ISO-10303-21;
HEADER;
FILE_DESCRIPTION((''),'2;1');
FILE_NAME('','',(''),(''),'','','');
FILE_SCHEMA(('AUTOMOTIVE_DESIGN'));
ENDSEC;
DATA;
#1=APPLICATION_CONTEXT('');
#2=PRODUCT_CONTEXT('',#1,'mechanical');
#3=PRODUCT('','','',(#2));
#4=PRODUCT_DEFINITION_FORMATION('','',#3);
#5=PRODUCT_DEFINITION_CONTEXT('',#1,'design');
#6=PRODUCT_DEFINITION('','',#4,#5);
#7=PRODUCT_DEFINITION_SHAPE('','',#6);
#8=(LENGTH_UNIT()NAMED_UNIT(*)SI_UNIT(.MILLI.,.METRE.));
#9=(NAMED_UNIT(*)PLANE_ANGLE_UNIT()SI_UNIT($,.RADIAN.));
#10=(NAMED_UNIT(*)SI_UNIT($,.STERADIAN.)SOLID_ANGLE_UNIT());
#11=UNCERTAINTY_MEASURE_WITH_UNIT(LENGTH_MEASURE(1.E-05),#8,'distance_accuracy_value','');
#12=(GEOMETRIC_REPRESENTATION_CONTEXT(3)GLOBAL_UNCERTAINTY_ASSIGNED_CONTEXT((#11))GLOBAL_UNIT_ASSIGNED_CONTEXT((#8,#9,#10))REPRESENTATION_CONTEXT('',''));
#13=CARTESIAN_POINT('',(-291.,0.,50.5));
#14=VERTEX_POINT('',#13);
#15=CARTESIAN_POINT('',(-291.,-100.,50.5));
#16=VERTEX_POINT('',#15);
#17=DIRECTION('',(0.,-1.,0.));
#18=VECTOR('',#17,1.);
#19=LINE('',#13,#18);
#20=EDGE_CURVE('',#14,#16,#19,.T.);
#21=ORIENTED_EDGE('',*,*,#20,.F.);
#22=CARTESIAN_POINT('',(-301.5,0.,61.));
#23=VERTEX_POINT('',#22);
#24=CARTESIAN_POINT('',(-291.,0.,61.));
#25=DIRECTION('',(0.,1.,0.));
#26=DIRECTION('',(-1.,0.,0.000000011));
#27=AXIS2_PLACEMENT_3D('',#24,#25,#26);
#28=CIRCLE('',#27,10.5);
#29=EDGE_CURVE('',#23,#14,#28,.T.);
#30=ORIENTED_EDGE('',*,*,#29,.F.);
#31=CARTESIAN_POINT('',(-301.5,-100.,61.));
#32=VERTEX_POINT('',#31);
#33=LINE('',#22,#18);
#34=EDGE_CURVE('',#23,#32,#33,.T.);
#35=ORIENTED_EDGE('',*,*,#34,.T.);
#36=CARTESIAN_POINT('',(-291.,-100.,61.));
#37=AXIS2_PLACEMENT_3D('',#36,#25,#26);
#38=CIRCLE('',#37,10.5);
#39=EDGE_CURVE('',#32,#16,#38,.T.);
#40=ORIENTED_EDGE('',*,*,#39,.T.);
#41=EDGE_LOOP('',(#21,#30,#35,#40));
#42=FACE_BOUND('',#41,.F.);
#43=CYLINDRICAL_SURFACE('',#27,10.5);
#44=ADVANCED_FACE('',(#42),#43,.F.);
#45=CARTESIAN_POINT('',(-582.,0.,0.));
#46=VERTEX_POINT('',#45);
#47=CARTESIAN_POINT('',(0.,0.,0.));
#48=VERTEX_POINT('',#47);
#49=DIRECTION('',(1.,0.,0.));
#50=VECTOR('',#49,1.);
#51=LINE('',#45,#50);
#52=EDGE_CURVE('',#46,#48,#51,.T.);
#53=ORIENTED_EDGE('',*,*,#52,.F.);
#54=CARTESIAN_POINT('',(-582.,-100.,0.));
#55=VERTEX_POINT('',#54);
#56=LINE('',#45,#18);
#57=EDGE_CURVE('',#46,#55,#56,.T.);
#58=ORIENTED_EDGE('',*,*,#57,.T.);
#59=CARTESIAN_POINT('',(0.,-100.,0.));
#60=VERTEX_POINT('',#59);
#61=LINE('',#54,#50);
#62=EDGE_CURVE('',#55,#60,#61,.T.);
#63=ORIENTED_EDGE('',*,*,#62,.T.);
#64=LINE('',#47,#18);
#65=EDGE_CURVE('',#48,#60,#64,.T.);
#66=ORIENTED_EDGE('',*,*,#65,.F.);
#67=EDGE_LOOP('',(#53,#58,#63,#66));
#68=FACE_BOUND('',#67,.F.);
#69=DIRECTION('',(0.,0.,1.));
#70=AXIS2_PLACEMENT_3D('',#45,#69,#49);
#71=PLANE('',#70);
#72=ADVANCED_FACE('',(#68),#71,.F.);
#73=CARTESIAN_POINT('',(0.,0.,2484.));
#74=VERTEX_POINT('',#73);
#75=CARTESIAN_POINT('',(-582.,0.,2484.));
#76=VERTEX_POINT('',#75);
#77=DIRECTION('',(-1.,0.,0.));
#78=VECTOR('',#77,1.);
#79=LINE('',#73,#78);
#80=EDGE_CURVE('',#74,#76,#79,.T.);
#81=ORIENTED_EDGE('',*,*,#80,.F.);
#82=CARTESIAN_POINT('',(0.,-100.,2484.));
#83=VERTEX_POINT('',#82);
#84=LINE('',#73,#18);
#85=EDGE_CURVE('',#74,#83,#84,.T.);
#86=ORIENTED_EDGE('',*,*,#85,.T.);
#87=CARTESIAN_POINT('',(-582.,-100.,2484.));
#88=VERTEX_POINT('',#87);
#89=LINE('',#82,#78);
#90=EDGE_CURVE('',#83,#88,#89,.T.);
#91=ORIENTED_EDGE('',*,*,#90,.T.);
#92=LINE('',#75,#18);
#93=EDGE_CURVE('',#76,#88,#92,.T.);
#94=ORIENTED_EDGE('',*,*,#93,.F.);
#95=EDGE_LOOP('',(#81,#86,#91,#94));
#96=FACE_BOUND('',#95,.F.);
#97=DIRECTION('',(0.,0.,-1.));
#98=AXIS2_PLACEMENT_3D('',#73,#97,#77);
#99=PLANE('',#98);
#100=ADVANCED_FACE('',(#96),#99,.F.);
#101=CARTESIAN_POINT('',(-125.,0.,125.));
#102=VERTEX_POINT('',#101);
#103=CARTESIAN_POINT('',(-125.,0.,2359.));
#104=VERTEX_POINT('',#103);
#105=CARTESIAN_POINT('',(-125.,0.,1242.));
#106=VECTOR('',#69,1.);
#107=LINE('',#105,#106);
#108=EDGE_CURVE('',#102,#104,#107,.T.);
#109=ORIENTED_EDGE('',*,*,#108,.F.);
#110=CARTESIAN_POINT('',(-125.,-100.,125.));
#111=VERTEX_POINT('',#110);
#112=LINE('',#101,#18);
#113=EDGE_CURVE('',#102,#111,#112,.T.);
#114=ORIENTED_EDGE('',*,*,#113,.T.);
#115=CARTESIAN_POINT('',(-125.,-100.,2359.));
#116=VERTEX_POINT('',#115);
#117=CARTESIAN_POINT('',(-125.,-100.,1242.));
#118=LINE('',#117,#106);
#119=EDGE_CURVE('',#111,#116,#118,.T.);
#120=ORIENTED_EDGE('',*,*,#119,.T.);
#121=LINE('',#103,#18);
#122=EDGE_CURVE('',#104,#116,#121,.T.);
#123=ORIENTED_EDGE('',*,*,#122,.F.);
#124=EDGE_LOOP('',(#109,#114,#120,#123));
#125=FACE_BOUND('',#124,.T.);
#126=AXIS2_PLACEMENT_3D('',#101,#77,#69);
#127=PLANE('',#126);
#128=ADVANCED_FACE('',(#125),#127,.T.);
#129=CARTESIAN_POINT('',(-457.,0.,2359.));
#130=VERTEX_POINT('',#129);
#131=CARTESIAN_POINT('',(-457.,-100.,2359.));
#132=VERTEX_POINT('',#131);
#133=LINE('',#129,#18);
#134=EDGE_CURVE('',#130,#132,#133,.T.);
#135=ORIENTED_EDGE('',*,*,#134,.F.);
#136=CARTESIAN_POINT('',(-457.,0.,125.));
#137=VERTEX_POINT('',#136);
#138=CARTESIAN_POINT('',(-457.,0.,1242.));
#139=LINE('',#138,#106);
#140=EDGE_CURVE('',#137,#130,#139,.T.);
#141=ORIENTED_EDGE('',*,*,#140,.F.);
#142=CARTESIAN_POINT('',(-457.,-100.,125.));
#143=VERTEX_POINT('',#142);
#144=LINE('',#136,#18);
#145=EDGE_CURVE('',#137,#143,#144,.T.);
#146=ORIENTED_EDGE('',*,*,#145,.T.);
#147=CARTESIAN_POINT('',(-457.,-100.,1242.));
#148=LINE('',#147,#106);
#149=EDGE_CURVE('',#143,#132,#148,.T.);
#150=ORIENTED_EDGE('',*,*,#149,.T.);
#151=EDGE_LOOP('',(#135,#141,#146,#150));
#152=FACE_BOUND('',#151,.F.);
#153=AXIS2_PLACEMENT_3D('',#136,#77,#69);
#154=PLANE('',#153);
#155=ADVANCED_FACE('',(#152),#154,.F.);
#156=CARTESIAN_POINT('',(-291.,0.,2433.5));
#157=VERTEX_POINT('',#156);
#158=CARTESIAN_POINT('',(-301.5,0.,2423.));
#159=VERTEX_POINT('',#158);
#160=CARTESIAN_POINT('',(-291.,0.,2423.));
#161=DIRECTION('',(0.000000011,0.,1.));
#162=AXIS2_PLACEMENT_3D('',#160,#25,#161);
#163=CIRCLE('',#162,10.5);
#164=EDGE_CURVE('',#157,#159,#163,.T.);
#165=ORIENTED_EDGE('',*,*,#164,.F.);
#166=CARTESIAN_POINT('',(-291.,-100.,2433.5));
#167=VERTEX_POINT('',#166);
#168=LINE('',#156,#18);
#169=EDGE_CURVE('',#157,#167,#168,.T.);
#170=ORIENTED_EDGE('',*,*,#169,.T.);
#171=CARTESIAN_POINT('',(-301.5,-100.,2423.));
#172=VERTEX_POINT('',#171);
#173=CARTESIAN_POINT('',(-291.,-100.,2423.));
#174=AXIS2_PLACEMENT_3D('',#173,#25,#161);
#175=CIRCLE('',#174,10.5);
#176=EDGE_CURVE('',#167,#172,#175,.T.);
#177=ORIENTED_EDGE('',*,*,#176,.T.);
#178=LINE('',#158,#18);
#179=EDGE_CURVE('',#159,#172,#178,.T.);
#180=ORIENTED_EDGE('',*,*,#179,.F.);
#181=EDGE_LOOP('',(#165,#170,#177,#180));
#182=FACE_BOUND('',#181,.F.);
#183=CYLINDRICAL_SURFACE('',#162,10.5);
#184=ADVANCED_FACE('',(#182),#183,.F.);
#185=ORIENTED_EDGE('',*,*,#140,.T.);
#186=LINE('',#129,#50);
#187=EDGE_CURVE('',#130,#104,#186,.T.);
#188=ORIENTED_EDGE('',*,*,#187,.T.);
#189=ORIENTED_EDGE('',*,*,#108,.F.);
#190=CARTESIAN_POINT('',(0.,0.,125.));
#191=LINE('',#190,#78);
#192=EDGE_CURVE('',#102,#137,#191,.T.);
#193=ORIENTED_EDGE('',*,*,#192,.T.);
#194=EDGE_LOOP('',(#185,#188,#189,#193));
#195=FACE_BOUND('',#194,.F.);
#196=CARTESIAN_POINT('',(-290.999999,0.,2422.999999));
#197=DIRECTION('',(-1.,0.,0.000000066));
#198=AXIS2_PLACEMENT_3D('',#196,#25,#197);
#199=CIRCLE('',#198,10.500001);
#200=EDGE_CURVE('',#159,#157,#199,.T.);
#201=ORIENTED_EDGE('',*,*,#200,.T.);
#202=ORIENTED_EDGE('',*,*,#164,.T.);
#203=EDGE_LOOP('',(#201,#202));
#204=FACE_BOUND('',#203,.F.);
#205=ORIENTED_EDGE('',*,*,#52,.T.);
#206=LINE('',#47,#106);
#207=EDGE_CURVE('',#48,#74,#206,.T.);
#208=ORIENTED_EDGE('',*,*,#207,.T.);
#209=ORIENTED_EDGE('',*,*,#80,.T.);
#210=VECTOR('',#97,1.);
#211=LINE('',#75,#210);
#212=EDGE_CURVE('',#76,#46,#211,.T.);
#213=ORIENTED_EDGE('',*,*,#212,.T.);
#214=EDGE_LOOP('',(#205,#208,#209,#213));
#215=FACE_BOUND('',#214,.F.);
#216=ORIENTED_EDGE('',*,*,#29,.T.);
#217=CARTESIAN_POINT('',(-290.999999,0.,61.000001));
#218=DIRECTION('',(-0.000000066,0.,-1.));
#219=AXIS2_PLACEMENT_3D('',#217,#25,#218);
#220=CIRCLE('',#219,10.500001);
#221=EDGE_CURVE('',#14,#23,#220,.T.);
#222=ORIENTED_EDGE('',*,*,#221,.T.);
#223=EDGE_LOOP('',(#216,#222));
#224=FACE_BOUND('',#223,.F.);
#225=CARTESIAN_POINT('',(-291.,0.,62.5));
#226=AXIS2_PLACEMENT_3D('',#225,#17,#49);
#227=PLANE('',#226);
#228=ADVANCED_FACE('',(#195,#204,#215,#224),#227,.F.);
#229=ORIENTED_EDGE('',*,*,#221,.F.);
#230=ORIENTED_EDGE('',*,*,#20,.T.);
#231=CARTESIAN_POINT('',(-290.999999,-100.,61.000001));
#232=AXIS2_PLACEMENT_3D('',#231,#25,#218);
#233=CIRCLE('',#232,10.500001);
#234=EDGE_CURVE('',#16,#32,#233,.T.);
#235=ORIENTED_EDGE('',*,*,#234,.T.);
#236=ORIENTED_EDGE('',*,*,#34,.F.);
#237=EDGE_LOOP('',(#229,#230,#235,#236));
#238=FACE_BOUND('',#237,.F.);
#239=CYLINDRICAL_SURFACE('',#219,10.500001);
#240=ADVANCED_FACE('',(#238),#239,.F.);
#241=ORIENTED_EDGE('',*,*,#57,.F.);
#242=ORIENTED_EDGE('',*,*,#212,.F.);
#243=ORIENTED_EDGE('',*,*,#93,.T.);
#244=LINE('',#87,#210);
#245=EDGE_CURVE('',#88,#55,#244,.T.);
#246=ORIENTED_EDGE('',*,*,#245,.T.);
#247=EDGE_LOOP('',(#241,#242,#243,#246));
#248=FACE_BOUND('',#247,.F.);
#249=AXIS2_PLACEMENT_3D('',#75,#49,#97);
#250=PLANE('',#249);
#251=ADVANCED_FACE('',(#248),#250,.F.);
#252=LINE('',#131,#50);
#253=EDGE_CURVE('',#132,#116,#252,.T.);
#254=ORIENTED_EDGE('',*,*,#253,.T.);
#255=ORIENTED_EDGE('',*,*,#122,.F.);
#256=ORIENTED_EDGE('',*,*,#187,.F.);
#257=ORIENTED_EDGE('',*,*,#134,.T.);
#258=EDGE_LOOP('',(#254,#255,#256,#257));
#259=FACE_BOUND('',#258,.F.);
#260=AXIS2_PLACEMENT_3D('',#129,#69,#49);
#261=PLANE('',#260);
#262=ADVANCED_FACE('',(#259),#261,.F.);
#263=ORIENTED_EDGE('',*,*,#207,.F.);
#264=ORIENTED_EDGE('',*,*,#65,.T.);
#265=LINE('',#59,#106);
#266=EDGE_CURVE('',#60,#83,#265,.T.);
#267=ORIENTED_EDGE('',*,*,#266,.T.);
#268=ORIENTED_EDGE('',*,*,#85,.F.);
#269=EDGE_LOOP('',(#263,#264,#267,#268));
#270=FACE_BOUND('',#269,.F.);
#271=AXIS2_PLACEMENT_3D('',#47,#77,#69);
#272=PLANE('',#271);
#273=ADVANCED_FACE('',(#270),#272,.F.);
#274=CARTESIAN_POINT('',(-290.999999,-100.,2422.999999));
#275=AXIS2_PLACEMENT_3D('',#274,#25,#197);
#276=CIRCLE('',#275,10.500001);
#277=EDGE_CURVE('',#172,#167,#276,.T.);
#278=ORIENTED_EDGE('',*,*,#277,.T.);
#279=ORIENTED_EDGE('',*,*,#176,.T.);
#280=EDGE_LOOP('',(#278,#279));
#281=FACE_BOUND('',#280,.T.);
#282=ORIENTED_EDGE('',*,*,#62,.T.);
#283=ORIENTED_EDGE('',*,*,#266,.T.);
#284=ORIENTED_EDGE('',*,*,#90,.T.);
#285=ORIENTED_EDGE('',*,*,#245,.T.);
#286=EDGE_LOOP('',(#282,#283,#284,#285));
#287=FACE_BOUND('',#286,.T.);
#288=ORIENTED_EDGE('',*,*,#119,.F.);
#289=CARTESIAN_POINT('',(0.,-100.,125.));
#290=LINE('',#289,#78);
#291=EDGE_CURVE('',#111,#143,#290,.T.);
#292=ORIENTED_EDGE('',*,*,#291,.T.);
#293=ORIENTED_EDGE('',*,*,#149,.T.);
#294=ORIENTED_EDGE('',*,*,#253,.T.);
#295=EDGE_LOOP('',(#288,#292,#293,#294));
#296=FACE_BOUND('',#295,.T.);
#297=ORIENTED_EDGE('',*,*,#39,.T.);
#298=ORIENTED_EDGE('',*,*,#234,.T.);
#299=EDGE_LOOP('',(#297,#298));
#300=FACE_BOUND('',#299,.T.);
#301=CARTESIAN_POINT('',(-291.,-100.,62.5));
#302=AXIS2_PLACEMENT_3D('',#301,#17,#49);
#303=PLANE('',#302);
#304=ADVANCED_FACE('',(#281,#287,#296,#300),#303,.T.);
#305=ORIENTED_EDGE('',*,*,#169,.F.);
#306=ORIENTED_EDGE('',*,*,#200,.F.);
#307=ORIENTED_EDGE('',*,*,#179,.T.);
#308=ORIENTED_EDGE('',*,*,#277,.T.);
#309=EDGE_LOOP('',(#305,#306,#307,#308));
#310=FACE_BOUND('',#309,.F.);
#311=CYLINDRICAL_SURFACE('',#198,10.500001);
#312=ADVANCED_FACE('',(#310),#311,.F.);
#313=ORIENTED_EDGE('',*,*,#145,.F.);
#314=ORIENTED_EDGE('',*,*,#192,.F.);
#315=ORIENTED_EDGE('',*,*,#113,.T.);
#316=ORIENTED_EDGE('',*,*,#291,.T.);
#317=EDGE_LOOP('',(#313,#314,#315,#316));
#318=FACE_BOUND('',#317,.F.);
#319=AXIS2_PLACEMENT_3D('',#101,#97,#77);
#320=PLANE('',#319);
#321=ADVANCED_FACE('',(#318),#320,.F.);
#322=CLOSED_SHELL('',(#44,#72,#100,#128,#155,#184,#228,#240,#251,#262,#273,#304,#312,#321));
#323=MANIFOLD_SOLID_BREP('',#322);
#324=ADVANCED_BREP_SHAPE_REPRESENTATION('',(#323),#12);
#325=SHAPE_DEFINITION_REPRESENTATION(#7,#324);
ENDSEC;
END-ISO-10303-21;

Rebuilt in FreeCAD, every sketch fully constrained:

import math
import FreeCAD as App
import Part
import Sketcher
from FreeCAD import Vector
Q = App.Units.Quantity

doc = App.newDocument("Part")
body = doc.addObject("PartDesign::Body", "Body")

# Sketch on XZ plane
sketch1 = doc.addObject("Sketcher::SketchObject", "Sketch")
body.addObject(sketch1)
sketch1.AttachmentSupport = (doc.XZ_Plane, [""])
sketch1.MapMode = "FlatFace"
sketch1.addGeometry([
    Part.LineSegment(Vector(-582, 0, 0), Vector(0, 0, 0)),  # 0
    Part.LineSegment(Vector(0, 0, 0), Vector(0, 2484, 0)),  # 1
    Part.LineSegment(Vector(0, 2484, 0), Vector(-582, 2484, 0)),  # 2
    Part.LineSegment(Vector(-582, 2484, 0), Vector(-582, 0, 0)),  # 3
    Part.LineSegment(Vector(-125, 2359, 0), Vector(-125, 125, 0)),  # 4
    Part.LineSegment(Vector(-125, 125, 0), Vector(-457, 125, 0)),  # 5
    Part.LineSegment(Vector(-457, 125, 0), Vector(-457, 2359, 0)),  # 6
    Part.LineSegment(Vector(-457, 2359, 0), Vector(-125, 2359, 0)),  # 7
], False)
sketch1.addConstraint([
    Sketcher.Constraint("Coincident", 0, 2, 1, 1),
    Sketcher.Constraint("Coincident", 1, 2, 2, 1),
    Sketcher.Constraint("Coincident", 2, 2, 3, 1),
    Sketcher.Constraint("Coincident", 3, 2, 0, 1),
    Sketcher.Constraint("Coincident", 4, 2, 5, 1),
    Sketcher.Constraint("Coincident", 5, 2, 6, 1),
    Sketcher.Constraint("Coincident", 6, 2, 7, 1),
    Sketcher.Constraint("Coincident", 7, 2, 4, 1),
    Sketcher.Constraint("Horizontal", 0),
    Sketcher.Constraint("Vertical", 1),
    Sketcher.Constraint("Horizontal", 2),
    Sketcher.Constraint("Vertical", 3),
    Sketcher.Constraint("Vertical", 4),
    Sketcher.Constraint("Horizontal", 5),
    Sketcher.Constraint("Vertical", 6),
    Sketcher.Constraint("Horizontal", 7),
    Sketcher.Constraint("Coincident", 0, 2, -1, 1),
    Sketcher.Constraint("DistanceX", 0, 1, 0, 2, Q("582 mm")),
    Sketcher.Constraint("DistanceX", 5, 2, 5, 1, Q("332 mm")),
    Sketcher.Constraint("DistanceY", 1, 1, 1, 2, Q("2484 mm")),
    Sketcher.Constraint("DistanceY", 4, 2, 4, 1, Q("2234 mm")),
    Sketcher.Constraint("DistanceX", 4, 2, -1, 1, Q("125 mm")),
    Sketcher.Constraint("DistanceY", -1, 1, 4, 2, Q("125 mm")),
])
pad1 = doc.addObject("PartDesign::Pad", "Pad")
body.addObject(pad1)
pad1.Profile = sketch1
pad1.Length = 100

# Sketch on XZ plane
sketch2 = doc.addObject("Sketcher::SketchObject", "Sketch001")
body.addObject(sketch2)
sketch2.AttachmentSupport = (doc.XZ_Plane, [""])
sketch2.MapMode = "FlatFace"
sketch2.addGeometry([
    Part.ArcOfCircle(Part.Circle(Vector(-291, 2423, 0), Vector(0, 0, 1), 10), math.radians(-180), math.radians(90)),
    Part.ArcOfCircle(Part.Circle(Vector(-291, 2423, 0), Vector(0, 0, 1), 11), math.radians(90), math.radians(180)),
    Part.ArcOfCircle(Part.Circle(Vector(-291, 61, 0), Vector(0, 0, 1), 11), math.radians(-180), math.radians(-90)),
    Part.ArcOfCircle(Part.Circle(Vector(-291, 61, 0), Vector(0, 0, 1), 10), math.radians(-90), math.radians(180)),
], False)
sketch2.addConstraint([
    Sketcher.Constraint("Tangent", 0, 1, 1, 2),
    Sketcher.Constraint("Coincident", 1, 1, 0, 2),
    Sketcher.Constraint("Tangent", 2, 1, 3, 2),
    Sketcher.Constraint("Coincident", 3, 1, 2, 2),
    Sketcher.Constraint("Equal", 1, 2),
    Sketcher.Constraint("Horizontal", 1, 3, 0, 1),
    Sketcher.Constraint("Horizontal", 3, 3, 2, 1),
    Sketcher.Constraint("Vertical", 1, 3, 2, 3),
    Sketcher.Constraint("Vertical", 3, 3, 1, 1),
    Sketcher.Constraint("Vertical", 1, 1, 3, 1),
    Sketcher.Constraint("Radius", 0, Q("10.5 mm")),
    Sketcher.Constraint("DistanceX", 0, 3, -1, 1, Q("291 mm")),
    Sketcher.Constraint("DistanceY", -1, 1, 0, 3, Q("2423 mm")),
    Sketcher.Constraint("DistanceY", -1, 1, 2, 3, Q("61.000001 mm")),
])
pocket1 = doc.addObject("PartDesign::Pocket", "Pocket")
body.addObject(pocket1)
pocket1.Profile = sketch2
pocket1.Type = "ThroughAll"
pocket1.Reversed = True

doc.recompute()
